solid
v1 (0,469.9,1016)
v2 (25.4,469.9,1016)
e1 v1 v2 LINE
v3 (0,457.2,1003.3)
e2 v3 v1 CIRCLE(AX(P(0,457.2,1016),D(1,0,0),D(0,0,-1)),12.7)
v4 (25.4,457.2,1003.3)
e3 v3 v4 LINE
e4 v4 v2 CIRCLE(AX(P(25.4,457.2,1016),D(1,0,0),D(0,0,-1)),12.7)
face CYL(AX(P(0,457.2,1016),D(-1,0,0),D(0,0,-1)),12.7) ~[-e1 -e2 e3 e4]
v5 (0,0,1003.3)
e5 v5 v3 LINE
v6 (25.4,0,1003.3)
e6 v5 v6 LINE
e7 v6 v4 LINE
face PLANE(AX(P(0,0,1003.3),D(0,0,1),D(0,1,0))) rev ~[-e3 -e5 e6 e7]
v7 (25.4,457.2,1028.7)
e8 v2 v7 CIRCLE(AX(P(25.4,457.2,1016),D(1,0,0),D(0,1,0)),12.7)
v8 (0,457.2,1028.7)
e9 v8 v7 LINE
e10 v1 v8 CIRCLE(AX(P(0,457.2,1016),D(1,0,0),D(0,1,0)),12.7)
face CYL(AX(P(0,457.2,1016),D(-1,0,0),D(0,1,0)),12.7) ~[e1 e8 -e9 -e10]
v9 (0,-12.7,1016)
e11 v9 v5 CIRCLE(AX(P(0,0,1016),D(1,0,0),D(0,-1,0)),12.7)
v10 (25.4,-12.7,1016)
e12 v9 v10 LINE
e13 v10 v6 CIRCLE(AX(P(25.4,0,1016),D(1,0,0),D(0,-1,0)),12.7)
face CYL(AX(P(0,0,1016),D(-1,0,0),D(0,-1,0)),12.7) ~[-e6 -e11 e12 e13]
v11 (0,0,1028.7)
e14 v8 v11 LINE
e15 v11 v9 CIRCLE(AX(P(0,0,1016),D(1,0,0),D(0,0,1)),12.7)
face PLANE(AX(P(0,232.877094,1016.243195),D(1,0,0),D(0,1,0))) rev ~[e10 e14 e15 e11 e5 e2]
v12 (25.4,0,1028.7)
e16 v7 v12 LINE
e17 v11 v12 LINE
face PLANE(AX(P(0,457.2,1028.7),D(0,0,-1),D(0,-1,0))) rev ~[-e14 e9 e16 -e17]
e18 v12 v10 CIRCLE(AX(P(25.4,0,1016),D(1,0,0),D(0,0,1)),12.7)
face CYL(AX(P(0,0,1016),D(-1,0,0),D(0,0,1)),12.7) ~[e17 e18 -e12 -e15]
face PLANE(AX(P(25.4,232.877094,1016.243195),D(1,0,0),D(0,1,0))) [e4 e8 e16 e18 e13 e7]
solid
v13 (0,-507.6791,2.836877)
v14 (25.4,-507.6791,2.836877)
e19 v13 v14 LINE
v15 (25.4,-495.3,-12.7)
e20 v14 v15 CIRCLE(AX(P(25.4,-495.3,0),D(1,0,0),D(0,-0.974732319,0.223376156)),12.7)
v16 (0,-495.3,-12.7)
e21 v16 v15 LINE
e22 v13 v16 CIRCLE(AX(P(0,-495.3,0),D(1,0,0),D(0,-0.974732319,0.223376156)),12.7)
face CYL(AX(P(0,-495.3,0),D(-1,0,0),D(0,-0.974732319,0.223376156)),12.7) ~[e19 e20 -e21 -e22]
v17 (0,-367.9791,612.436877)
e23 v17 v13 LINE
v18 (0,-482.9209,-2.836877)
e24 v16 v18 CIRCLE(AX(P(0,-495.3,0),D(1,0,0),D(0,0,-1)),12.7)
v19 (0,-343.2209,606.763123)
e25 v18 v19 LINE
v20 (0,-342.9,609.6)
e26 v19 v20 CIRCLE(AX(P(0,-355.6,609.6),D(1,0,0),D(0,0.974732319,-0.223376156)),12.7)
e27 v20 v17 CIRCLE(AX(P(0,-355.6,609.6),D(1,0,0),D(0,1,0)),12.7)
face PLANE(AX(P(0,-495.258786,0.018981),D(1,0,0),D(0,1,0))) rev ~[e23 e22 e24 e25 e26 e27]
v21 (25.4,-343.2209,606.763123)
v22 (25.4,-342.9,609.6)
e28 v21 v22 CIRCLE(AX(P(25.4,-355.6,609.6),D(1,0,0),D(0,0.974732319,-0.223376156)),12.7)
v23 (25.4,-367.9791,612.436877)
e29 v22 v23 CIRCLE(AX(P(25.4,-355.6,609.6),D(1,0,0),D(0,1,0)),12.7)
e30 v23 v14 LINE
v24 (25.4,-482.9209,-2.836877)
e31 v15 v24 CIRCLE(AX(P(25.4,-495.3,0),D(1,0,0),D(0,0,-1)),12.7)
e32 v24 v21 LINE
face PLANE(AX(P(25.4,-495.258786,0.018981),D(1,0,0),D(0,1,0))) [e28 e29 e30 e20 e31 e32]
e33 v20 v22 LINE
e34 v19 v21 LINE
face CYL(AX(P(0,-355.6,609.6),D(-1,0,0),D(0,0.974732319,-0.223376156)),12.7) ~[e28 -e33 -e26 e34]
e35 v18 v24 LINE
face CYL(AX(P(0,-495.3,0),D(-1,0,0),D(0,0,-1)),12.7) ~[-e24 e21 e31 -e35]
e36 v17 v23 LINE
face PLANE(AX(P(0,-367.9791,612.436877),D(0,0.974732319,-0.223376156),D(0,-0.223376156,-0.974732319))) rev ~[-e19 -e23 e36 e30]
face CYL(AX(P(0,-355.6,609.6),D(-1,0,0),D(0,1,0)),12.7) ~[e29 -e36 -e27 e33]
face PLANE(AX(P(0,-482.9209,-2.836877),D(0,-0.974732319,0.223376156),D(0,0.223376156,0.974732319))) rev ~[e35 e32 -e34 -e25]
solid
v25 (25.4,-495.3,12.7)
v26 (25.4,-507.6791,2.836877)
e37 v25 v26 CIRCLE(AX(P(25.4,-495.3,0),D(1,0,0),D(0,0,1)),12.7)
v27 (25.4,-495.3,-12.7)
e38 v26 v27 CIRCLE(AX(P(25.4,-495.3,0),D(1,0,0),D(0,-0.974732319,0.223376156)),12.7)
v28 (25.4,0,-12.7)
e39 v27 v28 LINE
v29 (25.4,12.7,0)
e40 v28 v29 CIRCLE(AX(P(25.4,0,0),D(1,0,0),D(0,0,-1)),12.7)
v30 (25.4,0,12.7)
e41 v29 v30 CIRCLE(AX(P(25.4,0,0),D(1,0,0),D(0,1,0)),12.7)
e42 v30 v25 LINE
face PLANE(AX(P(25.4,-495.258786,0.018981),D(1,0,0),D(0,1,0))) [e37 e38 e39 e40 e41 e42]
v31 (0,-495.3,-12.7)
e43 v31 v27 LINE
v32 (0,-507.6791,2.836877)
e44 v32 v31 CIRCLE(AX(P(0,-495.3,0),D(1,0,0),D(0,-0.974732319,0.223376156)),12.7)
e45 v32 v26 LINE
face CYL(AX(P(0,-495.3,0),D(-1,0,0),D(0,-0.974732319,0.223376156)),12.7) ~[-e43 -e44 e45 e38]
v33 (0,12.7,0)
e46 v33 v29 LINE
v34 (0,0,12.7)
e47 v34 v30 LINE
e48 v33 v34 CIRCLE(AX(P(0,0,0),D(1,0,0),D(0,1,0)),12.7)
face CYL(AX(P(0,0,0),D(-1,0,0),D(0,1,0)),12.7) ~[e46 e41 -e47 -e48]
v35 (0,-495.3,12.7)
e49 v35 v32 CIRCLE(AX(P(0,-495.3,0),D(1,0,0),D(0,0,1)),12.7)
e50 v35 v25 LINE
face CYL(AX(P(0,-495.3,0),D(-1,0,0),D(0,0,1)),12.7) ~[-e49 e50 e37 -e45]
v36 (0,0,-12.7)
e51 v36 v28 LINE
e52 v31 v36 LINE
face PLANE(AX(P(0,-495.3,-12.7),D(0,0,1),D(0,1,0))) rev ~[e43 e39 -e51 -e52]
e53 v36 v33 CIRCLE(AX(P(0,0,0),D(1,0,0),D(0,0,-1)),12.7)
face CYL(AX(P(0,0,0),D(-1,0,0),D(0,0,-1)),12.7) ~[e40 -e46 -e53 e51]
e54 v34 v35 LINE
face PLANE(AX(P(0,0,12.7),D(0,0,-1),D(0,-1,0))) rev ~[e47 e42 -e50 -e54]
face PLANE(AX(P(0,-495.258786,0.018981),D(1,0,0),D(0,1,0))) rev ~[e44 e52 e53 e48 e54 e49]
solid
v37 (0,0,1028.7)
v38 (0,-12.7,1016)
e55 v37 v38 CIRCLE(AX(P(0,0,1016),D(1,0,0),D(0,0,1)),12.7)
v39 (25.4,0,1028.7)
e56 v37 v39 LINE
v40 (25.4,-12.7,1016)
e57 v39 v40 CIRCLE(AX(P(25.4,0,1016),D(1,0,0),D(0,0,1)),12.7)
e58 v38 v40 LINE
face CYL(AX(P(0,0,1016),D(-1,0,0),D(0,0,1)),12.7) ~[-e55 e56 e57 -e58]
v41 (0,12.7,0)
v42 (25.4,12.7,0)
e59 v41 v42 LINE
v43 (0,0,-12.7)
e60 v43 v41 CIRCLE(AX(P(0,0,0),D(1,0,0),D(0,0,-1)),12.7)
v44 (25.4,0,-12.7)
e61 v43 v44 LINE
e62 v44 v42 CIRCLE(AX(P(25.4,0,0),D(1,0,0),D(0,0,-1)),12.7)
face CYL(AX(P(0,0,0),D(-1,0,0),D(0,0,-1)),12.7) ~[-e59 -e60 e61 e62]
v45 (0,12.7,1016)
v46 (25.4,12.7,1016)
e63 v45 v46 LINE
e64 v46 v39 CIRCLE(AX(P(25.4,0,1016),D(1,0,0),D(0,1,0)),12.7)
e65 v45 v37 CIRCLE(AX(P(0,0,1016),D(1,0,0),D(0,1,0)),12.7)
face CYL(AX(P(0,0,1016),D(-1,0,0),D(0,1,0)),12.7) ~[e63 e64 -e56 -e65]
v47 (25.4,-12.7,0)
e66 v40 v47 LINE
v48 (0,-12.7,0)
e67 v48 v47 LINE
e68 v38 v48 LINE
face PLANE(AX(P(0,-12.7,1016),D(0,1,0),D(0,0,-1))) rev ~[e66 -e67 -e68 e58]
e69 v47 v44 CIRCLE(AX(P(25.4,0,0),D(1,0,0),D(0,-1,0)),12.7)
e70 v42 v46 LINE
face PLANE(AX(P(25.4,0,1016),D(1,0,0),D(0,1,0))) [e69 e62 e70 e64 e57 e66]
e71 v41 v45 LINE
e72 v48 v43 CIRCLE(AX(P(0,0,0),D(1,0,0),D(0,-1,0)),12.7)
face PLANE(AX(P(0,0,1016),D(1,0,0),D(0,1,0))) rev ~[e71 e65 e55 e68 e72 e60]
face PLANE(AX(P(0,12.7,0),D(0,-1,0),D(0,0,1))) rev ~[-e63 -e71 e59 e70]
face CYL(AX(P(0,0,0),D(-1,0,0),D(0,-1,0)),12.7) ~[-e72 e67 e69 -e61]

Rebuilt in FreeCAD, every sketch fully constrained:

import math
import FreeCAD as App
import Part
import Sketcher

V = App.Vector
Q = App.Units.Quantity

doc = App.newDocument("Part")
body = doc.addObject("PartDesign::Body", "Body")

sketch1 = doc.addObject("Sketcher::SketchObject", "Sketch")
body.addObject(sketch1)
sketch1.AttachmentSupport = (doc.YZ_Plane, [""])
sketch1.MapMode = "FlatFace"
sketch1.addGeometry([
    Part.ArcOfCircle(Part.Circle(V(0, 1016, 0), V(0, 0, 1), 12.7), math.radians(0), math.radians(90)),
    Part.ArcOfCircle(Part.Circle(V(0, 1016, 0), V(0, 0, 1), 12.7), math.radians(90), math.radians(180)),
    Part.LineSegment(V(-12.7, 1016, 0), V(-12.7, 0, 0)),
    Part.ArcOfCircle(Part.Circle(V(0, 0, 0), V(0, 0, 1), 12.7), math.radians(180), math.radians(270)),
    Part.ArcOfCircle(Part.Circle(V(0, 0, 0), V(0, 0, 1), 12.7), math.radians(-90), math.radians(0)),
    Part.LineSegment(V(12.7, 0, 0), V(12.7, 1016, 0)),
], False)
sketch1.addConstraint([
    Sketcher.Constraint("Tangent", 0, 2, 1, 1),
    Sketcher.Constraint("Tangent", 1, 2, 2, 1),
    Sketcher.Constraint("Tangent", 2, 2, 3, 1),
    Sketcher.Constraint("Tangent", 3, 2, 4, 1),
    Sketcher.Constraint("Tangent", 4, 2, 5, 1),
    Sketcher.Constraint("Tangent", 5, 2, 0, 1),
    Sketcher.Constraint("Vertical", 2),
    Sketcher.Constraint("Vertical", 5),
    Sketcher.Constraint("Coincident", 3, 3, -1, 1),
    Sketcher.Constraint("Equal", 0, 1),
    Sketcher.Constraint("Equal", 1, 3),
    Sketcher.Constraint("PointOnObject", 0, 2, -2),
    Sketcher.Constraint("PointOnObject", 3, 2, -2),
    Sketcher.Constraint("Radius", 0, Q("0.5 in")),
    Sketcher.Constraint("DistanceY", 2, 2, 2, 1, Q("40 in")),
])
pad1 = doc.addObject("PartDesign::Pad", "Pad")
body.addObject(pad1)
pad1.Profile = sketch1
pad1.Length = Q("1 in")
body2 = doc.addObject("PartDesign::Body", "Body001")

sketch2 = doc.addObject("Sketcher::SketchObject", "Sketch001")
body2.addObject(sketch2)
sketch2.AttachmentSupport = (doc.getObject("YZ_Plane001"), [""])
sketch2.MapMode = "FlatFace"
sketch2.addGeometry([
    Part.LineSegment(V(457.2, 1028.7, 0), V(0, 1028.7, 0)),
    Part.ArcOfCircle(Part.Circle(V(0, 1016, 0), V(0, 0, 1), 12.7), math.radians(90), math.radians(180)),
    Part.ArcOfCircle(Part.Circle(V(0, 1016, 0), V(0, 0, 1), 12.7), math.radians(180), math.radians(270)),
    Part.LineSegment(V(0, 1003.3, 0), V(457.2, 1003.3, 0)),
    Part.ArcOfCircle(Part.Circle(V(457.2, 1016, 0), V(0, 0, 1), 12.7), math.radians(-90), math.radians(0)),
    Part.ArcOfCircle(Part.Circle(V(457.2, 1016, 0), V(0, 0, 1), 12.7), math.radians(0), math.radians(90)),
], False)
sketch2.addConstraint([
    Sketcher.Constraint("Tangent", 0, 2, 1, 1),
    Sketcher.Constraint("Tangent", 1, 2, 2, 1),
    Sketcher.Constraint("Tangent", 2, 2, 3, 1),
    Sketcher.Constraint("Tangent", 3, 2, 4, 1),
    Sketcher.Constraint("Tangent", 4, 2, 5, 1),
    Sketcher.Constraint("Tangent", 5, 2, 0, 1),
    Sketcher.Constraint("Horizontal", 0),
    Sketcher.Constraint("Horizontal", 3),
    Sketcher.Constraint("Equal", 1, 2),
    Sketcher.Constraint("Equal", 2, 4),
    Sketcher.Constraint("PointOnObject", 1, 3, -2),
    Sketcher.Constraint("Horizontal", 5, 3, 1, 2),
    Sketcher.Constraint("Horizontal", 1, 2, 4, 2),
    Sketcher.Constraint("Radius", 1, Q("0.5 in")),
    Sketcher.Constraint("DistanceX", 0, 2, 0, 1, Q("18 in")),
    Sketcher.Constraint("DistanceY", -1, 1, 1, 3, Q("40 in")),
])
pad2 = doc.addObject("PartDesign::Pad", "Pad001")
body2.addObject(pad2)
pad2.Profile = sketch2
pad2.Length = Q("1 in")
body3 = doc.addObject("PartDesign::Body", "Body002")

sketch3 = doc.addObject("Sketcher::SketchObject", "Sketch002")
body3.addObject(sketch3)
sketch3.AttachmentSupport = (doc.getObject("YZ_Plane002"), [""])
sketch3.MapMode = "FlatFace"
sketch3.addGeometry([
    Part.ArcOfCircle(Part.Circle(V(-495.3, 0, 0), V(0, 0, 1), 12.7), math.radians(167.092591), math.radians(270)),
    Part.LineSegment(V(-495.3, -12.7, 0), V(0, -12.7, 0)),
    Part.ArcOfCircle(Part.Circle(V(0, 0, 0), V(0, 0, 1), 12.7), math.radians(-90), math.radians(0)),
    Part.ArcOfCircle(Part.Circle(V(0, 0, 0), V(0, 0, 1), 12.7), math.radians(0), math.radians(90)),
    Part.LineSegment(V(0, 12.7, 0), V(-495.3, 12.7, 0)),
    Part.ArcOfCircle(Part.Circle(V(-495.3, 0, 0), V(0, 0, 1), 12.7), math.radians(90), math.radians(167.092591)),
], False)
sketch3.addConstraint([
    Sketcher.Constraint("Tangent", 0, 2, 1, 1),
    Sketcher.Constraint("Tangent", 1, 2, 2, 1),
    Sketcher.Constraint("Tangent", 2, 2, 3, 1),
    Sketcher.Constraint("Tangent", 3, 2, 4, 1),
    Sketcher.Constraint("Tangent", 4, 2, 5, 1),
    Sketcher.Constraint("Tangent", 5, 2, 0, 1),
    Sketcher.Constraint("Horizontal", 1),
    Sketcher.Constraint("Horizontal", 4),
    Sketcher.Constraint("Coincident", 2, 3, -1, 1),
    Sketcher.Constraint("Equal", 0, 2),
    Sketcher.Constraint("Equal", 2, 3),
    Sketcher.Constraint("PointOnObject", 2, 2, -1),
    Sketcher.Constraint("Radius", 0, Q("0.5 in")),
    Sketcher.Constraint("DistanceX", 1, 1, 1, 2, Q("19.5 in")),
    Sketcher.Constraint("DistanceX", 5, 2, -1, 1, Q("507.6791 mm")),
])
pad3 = doc.addObject("PartDesign::Pad", "Pad002")
body3.addObject(pad3)
pad3.Profile = sketch3
pad3.Length = Q("1 in")
body4 = doc.addObject("PartDesign::Body", "Body003")

sketch4 = doc.addObject("Sketcher::SketchObject", "Sketch003")
body4.addObject(sketch4)
sketch4.AttachmentSupport = (doc.getObject("YZ_Plane003"), [""])
sketch4.MapMode = "FlatFace"
sketch4.addGeometry([
    Part.ArcOfCircle(Part.Circle(V(-495.3, 0, 0), V(0, 0, 1), 12.7), math.radians(167.092591), math.radians(270)),
    Part.ArcOfCircle(Part.Circle(V(-495.3, 0, 0), V(0, 0, 1), 12.7), math.radians(-90), math.radians(-12.907409)),
    Part.LineSegment(V(-482.9209, -2.836877, 0), V(-343.2209, 606.763123, 0)),
    Part.ArcOfCircle(Part.Circle(V(-355.6, 609.6, 0), V(0, 0, 1), 12.7), math.radians(-12.907409), math.radians(0)),
    Part.ArcOfCircle(Part.Circle(V(-355.6, 609.6, 0), V(0, 0, 1), 12.7), math.radians(0), math.radians(167.092591)),
    Part.LineSegment(V(-367.9791, 612.436877, 0), V(-507.6791, 2.836877, 0)),
], False)
sketch4.addConstraint([
    Sketcher.Constraint("Tangent", 0, 2, 1, 1),
    Sketcher.Constraint("Tangent", 1, 2, 2, 1),
    Sketcher.Constraint("Tangent", 2, 2, 3, 1),
    Sketcher.Constraint("Tangent", 3, 2, 4, 1),
    Sketcher.Constraint("Tangent", 4, 2, 5, 1),
    Sketcher.Constraint("Tangent", 5, 2, 0, 1),
    Sketcher.Constraint("Equal", 0, 1),
    Sketcher.Constraint("Equal", 1, 3),
    Sketcher.Constraint("Equal", 3, 4),
    Sketcher.Constraint("PointOnObject", 0, 3, -1),
    Sketcher.Constraint("Horizontal", 4, 3, 3, 2),
    Sketcher.Constraint("Vertical", 1, 3, 0, 2),
    Sketcher.Constraint("Radius", 0, Q("0.5 in")),
    Sketcher.Constraint("DistanceX", 3, 3, -1, 1, Q("14 in")),
    Sketcher.Constraint("DistanceY", -1, 1, 3, 3, Q("24 in")),
    Sketcher.Constraint("DistanceX", 0, 3, 3, 2, Q("6 in")),
])
pad4 = doc.addObject("PartDesign::Pad", "Pad003")
body4.addObject(pad4)
pad4.Profile = sketch4
pad4.Length = Q("1 in")

doc.recompute()
